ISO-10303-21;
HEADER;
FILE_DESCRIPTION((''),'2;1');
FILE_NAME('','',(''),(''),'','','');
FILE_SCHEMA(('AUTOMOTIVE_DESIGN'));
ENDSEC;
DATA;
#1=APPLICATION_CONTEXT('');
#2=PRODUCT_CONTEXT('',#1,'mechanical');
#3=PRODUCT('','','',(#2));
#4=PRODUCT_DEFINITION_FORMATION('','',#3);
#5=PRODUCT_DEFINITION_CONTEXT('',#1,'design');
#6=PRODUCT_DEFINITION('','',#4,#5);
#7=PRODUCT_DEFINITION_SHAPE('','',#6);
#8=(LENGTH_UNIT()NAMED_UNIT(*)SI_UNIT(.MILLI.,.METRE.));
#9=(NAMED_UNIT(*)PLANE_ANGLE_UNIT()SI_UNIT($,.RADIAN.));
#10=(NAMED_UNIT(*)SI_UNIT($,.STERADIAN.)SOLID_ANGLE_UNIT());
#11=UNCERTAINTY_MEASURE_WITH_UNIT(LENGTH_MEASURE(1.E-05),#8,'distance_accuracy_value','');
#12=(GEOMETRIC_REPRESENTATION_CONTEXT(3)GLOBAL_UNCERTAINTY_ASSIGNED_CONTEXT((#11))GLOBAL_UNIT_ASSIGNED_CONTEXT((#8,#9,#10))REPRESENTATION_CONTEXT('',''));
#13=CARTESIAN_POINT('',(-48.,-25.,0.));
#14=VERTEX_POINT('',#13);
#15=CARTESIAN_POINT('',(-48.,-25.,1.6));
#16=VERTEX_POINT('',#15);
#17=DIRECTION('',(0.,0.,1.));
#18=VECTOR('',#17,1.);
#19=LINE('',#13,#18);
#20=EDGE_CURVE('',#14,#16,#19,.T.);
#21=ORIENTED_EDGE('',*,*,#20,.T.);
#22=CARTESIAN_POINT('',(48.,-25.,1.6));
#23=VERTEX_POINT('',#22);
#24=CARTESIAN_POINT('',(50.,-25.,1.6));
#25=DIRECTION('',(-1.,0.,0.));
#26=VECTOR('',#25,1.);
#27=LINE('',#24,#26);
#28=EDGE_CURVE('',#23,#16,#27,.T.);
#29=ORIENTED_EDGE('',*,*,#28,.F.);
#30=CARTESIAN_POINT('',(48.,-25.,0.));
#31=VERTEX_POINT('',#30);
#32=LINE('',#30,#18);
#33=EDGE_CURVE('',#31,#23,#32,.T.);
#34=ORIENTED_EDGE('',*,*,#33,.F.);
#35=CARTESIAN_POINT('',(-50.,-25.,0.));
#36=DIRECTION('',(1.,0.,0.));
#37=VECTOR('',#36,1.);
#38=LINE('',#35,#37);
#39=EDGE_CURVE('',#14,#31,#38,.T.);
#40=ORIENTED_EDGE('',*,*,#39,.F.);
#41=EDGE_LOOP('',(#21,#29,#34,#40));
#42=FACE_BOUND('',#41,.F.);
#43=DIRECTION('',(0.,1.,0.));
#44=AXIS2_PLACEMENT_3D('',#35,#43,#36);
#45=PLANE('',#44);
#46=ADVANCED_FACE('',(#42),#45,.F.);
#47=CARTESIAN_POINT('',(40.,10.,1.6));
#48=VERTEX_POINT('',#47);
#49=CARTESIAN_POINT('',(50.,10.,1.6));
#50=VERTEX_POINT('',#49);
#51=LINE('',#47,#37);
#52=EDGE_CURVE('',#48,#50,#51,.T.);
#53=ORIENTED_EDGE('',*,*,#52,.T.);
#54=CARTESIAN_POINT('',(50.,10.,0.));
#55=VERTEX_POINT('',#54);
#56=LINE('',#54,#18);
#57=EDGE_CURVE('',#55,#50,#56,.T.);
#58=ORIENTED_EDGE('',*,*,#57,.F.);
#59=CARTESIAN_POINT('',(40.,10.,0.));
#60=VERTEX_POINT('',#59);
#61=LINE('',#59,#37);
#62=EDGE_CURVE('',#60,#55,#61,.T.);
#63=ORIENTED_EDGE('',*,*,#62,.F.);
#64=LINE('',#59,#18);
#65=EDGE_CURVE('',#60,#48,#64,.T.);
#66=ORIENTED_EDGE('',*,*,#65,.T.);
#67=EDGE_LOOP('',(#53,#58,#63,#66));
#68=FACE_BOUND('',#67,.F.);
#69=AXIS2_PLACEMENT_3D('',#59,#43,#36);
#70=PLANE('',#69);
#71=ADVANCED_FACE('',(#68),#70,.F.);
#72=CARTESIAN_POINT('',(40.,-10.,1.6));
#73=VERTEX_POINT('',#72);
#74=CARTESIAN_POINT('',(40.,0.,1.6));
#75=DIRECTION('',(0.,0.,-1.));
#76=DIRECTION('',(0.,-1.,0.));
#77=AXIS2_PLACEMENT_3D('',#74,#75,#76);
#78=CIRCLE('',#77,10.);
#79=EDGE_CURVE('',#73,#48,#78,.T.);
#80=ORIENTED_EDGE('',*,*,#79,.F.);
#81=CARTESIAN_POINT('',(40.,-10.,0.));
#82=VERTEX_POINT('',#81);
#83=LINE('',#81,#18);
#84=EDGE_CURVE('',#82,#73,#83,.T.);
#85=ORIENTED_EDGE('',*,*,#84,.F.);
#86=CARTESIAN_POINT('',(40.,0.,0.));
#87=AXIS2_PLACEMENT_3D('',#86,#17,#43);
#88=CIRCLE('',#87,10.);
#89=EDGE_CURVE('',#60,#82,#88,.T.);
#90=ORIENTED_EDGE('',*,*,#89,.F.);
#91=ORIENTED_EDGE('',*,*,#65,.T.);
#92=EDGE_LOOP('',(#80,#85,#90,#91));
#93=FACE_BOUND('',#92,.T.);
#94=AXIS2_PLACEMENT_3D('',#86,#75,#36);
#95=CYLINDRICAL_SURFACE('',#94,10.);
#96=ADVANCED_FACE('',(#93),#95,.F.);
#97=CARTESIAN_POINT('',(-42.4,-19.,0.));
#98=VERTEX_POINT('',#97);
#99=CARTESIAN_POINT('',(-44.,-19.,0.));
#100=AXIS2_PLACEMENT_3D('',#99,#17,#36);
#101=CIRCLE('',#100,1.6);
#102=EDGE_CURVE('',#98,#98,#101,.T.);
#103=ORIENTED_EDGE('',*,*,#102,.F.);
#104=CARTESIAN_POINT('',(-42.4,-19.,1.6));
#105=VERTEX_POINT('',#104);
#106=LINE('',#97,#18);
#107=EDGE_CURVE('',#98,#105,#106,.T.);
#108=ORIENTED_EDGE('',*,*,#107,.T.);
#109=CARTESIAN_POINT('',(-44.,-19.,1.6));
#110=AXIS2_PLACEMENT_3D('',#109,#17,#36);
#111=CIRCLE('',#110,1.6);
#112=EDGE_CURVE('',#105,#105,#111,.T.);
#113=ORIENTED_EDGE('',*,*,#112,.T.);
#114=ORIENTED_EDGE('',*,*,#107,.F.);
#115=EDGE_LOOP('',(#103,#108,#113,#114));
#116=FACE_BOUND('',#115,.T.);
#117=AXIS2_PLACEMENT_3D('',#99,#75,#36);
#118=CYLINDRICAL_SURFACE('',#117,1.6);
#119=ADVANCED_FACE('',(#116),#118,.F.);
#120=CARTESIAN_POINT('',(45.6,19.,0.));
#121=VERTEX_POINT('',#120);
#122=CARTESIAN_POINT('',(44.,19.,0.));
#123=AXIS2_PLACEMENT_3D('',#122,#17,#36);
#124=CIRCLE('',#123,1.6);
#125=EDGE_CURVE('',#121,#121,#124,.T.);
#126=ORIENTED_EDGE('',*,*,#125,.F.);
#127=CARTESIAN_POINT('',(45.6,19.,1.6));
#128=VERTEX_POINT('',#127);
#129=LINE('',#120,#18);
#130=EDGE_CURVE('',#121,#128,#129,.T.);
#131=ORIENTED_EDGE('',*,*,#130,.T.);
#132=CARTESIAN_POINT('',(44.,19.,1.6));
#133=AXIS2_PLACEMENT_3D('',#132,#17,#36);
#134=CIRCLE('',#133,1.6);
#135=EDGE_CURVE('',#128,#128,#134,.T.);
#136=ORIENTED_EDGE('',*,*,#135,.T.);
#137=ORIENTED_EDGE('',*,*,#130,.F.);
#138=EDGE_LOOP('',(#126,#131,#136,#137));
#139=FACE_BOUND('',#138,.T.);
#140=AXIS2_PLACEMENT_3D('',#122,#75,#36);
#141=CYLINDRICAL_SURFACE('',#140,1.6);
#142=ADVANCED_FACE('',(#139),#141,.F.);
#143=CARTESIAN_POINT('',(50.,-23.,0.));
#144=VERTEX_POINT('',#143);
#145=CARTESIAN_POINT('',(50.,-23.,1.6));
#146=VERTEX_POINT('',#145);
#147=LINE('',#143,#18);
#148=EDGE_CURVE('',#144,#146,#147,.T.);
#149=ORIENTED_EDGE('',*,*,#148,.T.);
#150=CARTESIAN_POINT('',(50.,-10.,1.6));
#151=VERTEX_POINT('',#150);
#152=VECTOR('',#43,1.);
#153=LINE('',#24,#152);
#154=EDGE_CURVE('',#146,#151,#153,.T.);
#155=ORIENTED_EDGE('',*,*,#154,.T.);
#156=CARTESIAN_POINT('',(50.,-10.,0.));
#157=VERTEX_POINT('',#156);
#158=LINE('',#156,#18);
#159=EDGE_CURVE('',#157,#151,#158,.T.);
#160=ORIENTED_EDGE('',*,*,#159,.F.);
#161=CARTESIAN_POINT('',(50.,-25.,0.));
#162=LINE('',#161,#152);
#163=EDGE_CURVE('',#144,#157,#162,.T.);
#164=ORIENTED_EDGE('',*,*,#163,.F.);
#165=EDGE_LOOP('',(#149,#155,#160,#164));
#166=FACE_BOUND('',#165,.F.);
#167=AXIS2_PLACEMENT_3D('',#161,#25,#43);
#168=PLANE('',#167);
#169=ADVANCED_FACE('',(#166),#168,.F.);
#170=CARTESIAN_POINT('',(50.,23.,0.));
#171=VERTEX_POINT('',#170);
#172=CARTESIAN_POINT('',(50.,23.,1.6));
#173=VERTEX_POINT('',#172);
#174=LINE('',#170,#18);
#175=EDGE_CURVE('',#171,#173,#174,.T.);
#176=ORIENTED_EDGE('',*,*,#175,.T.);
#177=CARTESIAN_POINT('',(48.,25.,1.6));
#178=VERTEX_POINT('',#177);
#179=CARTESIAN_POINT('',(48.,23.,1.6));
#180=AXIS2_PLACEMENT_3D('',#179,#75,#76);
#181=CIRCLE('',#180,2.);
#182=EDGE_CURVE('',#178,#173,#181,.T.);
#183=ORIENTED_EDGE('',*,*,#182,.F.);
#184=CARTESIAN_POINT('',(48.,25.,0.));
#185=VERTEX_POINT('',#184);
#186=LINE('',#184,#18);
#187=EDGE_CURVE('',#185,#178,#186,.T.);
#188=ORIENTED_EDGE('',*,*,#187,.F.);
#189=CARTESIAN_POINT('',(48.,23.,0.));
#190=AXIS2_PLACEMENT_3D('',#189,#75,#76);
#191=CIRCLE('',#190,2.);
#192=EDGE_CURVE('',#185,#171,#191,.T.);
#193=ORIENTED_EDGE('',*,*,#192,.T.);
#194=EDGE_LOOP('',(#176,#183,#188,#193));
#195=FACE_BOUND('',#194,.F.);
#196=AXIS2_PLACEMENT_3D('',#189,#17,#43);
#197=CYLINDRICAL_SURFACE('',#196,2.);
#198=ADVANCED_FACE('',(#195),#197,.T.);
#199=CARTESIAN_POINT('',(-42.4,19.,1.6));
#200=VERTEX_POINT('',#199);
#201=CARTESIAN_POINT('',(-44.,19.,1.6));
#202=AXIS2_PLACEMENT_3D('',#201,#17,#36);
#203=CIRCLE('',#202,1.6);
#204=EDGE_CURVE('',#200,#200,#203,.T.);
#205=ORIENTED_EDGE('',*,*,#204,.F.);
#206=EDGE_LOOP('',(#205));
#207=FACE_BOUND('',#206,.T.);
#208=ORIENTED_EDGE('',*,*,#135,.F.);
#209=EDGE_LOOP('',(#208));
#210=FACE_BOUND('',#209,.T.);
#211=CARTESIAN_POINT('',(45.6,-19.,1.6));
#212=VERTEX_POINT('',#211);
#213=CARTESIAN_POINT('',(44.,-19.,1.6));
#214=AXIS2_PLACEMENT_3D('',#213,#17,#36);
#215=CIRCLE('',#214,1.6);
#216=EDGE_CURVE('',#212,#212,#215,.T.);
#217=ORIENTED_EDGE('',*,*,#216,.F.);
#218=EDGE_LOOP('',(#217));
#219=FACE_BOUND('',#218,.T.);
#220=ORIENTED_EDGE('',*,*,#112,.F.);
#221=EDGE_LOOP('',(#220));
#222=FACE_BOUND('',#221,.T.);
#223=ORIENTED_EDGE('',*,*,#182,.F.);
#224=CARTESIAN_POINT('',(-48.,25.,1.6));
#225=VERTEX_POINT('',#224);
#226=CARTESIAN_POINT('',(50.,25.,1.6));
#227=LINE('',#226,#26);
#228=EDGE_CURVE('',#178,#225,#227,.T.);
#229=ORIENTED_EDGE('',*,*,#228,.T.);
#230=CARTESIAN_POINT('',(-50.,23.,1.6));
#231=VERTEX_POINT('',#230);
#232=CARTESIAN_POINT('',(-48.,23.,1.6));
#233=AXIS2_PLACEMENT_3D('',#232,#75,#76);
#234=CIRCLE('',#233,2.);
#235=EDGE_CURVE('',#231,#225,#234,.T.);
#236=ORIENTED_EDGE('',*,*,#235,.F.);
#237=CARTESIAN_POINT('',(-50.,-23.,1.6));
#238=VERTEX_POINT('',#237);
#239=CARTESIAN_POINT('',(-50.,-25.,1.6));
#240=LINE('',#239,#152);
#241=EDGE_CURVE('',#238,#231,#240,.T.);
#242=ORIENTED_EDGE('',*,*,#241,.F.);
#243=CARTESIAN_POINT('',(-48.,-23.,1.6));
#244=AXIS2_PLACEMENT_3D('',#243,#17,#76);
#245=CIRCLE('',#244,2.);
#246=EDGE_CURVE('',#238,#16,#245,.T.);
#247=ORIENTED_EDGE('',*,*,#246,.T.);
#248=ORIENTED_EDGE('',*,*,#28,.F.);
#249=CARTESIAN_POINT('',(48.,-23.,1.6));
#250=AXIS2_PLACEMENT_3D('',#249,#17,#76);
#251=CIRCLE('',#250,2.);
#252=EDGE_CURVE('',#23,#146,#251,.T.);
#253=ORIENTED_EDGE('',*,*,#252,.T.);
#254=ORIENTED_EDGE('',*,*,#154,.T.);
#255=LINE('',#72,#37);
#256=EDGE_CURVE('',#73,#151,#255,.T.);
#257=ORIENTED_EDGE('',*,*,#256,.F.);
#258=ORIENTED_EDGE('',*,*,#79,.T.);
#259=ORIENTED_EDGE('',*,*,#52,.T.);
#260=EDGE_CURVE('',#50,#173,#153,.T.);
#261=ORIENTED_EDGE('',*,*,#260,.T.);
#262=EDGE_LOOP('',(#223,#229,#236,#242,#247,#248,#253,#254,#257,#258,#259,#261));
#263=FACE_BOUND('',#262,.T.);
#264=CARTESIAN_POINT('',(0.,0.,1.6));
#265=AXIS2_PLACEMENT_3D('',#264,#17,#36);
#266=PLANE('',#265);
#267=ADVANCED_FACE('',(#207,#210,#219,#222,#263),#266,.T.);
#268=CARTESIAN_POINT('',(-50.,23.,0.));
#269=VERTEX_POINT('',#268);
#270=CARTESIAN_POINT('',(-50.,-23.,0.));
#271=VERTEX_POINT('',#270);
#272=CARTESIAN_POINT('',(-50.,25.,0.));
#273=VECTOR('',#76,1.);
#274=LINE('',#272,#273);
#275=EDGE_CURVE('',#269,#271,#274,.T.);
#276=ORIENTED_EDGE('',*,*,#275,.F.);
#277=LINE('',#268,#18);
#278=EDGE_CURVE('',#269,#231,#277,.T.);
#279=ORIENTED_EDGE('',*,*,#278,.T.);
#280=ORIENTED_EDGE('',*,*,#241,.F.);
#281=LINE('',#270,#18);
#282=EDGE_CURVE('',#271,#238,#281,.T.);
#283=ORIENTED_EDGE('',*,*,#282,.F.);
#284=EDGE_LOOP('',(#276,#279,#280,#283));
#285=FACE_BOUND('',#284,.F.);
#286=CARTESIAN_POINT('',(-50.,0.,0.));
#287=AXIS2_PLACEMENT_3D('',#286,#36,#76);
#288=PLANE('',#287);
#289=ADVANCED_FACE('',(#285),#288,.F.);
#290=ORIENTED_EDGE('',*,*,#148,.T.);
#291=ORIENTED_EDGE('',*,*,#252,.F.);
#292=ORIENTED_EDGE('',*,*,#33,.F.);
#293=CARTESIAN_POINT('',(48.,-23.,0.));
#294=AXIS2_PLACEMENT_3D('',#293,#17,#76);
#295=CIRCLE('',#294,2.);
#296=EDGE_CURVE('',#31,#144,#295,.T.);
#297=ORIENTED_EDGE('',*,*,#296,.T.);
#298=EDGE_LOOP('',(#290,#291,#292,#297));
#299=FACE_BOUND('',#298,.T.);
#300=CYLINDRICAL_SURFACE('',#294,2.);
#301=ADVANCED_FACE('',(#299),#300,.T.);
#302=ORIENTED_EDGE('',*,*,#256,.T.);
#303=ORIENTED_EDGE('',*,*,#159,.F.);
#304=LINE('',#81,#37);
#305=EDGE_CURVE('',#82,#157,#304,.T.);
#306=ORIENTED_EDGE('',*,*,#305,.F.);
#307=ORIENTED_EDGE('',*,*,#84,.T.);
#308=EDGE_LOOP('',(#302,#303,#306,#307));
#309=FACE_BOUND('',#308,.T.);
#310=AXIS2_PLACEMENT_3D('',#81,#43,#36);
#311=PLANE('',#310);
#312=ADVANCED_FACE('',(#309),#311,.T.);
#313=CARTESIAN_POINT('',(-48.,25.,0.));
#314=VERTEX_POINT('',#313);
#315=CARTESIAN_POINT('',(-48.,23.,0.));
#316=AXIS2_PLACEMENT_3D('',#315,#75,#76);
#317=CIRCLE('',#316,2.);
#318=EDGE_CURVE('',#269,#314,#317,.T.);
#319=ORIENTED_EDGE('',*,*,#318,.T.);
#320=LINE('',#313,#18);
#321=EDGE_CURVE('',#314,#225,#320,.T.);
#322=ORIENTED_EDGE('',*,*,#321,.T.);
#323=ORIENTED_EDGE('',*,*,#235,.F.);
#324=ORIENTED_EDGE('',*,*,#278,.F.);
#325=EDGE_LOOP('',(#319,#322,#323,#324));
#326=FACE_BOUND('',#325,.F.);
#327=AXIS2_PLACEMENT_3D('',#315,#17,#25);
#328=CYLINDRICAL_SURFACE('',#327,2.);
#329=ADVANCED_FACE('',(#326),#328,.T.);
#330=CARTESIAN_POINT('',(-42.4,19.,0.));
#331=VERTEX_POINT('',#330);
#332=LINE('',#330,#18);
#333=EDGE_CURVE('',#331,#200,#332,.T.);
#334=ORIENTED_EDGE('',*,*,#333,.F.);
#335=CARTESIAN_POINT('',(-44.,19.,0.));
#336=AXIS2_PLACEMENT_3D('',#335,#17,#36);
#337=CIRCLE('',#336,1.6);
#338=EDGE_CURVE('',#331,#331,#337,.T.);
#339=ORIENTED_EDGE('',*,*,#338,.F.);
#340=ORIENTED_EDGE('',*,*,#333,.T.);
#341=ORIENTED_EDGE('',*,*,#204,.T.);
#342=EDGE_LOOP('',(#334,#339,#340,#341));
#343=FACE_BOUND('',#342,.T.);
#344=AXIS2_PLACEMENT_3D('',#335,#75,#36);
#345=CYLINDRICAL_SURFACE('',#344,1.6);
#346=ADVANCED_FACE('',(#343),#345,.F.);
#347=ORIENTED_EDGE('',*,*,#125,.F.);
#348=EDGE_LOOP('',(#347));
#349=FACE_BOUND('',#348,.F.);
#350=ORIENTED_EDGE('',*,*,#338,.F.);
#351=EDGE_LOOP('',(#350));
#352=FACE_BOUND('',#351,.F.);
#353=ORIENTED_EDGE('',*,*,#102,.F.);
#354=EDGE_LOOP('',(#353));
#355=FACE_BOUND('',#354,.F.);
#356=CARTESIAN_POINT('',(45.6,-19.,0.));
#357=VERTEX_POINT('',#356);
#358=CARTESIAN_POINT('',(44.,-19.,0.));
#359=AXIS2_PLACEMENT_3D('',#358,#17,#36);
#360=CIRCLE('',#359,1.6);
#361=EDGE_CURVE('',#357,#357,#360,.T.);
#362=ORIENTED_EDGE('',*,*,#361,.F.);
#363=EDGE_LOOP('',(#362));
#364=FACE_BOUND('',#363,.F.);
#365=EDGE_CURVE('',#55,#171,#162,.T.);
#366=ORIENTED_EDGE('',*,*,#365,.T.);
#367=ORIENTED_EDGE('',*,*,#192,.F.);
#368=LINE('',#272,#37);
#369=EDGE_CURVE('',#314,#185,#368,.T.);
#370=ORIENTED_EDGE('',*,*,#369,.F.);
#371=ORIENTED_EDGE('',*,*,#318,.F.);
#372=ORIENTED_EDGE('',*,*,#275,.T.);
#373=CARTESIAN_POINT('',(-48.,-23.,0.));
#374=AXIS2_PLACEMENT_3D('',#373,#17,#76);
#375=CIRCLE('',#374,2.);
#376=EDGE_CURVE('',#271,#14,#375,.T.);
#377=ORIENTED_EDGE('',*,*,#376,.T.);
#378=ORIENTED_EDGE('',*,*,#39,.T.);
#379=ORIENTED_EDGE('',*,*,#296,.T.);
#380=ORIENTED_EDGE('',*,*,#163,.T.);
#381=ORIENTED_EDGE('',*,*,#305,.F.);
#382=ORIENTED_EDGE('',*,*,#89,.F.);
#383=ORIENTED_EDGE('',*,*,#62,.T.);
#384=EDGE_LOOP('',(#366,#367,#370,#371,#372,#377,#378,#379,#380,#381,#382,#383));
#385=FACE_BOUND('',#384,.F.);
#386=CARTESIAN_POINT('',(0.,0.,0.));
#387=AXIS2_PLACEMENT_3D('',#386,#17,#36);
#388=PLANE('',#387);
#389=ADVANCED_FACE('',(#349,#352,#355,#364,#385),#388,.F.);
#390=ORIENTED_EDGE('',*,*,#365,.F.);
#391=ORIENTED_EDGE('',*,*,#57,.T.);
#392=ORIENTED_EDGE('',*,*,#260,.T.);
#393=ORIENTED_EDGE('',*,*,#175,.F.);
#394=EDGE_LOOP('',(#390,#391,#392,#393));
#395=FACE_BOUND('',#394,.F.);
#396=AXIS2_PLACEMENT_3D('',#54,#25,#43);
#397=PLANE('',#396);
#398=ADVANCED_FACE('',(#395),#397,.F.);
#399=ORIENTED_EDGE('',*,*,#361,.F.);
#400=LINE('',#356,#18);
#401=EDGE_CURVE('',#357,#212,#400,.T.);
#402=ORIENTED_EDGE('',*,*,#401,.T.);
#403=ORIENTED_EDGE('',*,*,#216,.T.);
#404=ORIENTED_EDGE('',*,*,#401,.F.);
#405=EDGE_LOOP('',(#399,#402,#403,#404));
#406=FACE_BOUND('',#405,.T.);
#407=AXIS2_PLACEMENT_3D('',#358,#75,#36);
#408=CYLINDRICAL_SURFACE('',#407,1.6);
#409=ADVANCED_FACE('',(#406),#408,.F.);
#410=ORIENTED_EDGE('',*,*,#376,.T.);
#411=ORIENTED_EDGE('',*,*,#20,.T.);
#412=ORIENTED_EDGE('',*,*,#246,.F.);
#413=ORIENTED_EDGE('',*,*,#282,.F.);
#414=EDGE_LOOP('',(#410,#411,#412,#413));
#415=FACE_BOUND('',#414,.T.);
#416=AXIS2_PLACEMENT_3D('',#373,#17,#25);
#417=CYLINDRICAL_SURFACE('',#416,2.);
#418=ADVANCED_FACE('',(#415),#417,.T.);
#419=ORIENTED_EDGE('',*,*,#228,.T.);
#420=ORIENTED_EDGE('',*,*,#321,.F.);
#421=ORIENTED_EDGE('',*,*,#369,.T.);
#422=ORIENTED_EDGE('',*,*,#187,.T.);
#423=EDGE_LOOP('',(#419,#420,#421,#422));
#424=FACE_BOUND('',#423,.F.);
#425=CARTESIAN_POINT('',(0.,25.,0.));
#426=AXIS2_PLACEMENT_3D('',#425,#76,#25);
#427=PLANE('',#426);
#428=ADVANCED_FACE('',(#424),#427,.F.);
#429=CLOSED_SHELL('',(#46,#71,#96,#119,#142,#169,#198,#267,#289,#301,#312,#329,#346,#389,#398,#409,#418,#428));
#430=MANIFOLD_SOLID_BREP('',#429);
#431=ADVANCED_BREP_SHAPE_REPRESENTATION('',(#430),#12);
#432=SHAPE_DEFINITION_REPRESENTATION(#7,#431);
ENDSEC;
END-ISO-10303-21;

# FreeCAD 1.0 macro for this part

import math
import FreeCAD as App
import Part
import Sketcher
Q = App.Units.Quantity


def edges_at(feature, points):
    """Names of the edges that pass closest to the given points."""
    edges = feature.Shape.Edges
    near = lambda p: min(range(len(edges)), key=lambda i: edges[i].distToShape(Part.Vertex(*p))[0])
    return sorted({f"Edge{near(p) + 1}" for p in points})

doc = App.newDocument("Part")
body = doc.addObject("PartDesign::Body", "Body")

# Sketch on XY plane
sketch1 = body.newObject("Sketcher::SketchObject", "Sketch")
sketch1.AttachmentSupport = (doc.getObject("XY_Plane"), [""])
sketch1.MapMode = "FlatFace"
sketch1.addGeometry(Part.LineSegment(App.Vector(-50, -25, 0), App.Vector(50, -25, 0)), False)
sketch1.addGeometry(Part.LineSegment(App.Vector(50, -25, 0), App.Vector(50, -10, 0)), False)
sketch1.addGeometry(Part.LineSegment(App.Vector(50, -10, 0), App.Vector(40, -10, 0)), False)
sketch1.addGeometry(Part.ArcOfCircle(Part.Circle(App.Vector(40, 0, 0), App.Vector(0, 0, 1), 10), math.radians(90), math.radians(270)), False)
sketch1.addGeometry(Part.LineSegment(App.Vector(40, 10, 0), App.Vector(50, 10, 0)), False)
sketch1.addGeometry(Part.LineSegment(App.Vector(50, 10, 0), App.Vector(50, 25, 0)), False)
sketch1.addGeometry(Part.LineSegment(App.Vector(50, 25, 0), App.Vector(-50, 25, 0)), False)
sketch1.addGeometry(Part.LineSegment(App.Vector(-50, 25, 0), App.Vector(-50, -25, 0)), False)
sketch1.addGeometry(Part.Circle(App.Vector(-44, -19, 0), App.Vector(0, 0, 1), 1.6), False)
sketch1.addGeometry(Part.Circle(App.Vector(-44, 19, 0), App.Vector(0, 0, 1), 1.6), False)
sketch1.addGeometry(Part.Circle(App.Vector(44, -19, 0), App.Vector(0, 0, 1), 1.6), False)
sketch1.addGeometry(Part.Circle(App.Vector(44, 19, 0), App.Vector(0, 0, 1), 1.6), False)
sketch1.addConstraint(Sketcher.Constraint("Coincident", 0, 2, 1, 1))
sketch1.addConstraint(Sketcher.Constraint("Coincident", 1, 2, 2, 1))
sketch1.addConstraint(Sketcher.Constraint("Tangent", 2, 2, 3, 2))
sketch1.addConstraint(Sketcher.Constraint("Tangent", 3, 1, 4, 1))
sketch1.addConstraint(Sketcher.Constraint("Coincident", 4, 2, 5, 1))
sketch1.addConstraint(Sketcher.Constraint("Coincident", 5, 2, 6, 1))
sketch1.addConstraint(Sketcher.Constraint("Coincident", 6, 2, 7, 1))
sketch1.addConstraint(Sketcher.Constraint("Coincident", 7, 2, 0, 1))
sketch1.addConstraint(Sketcher.Constraint("Horizontal", 0))
sketch1.addConstraint(Sketcher.Constraint("Vertical", 1))
sketch1.addConstraint(Sketcher.Constraint("Horizontal", 2))
sketch1.addConstraint(Sketcher.Constraint("Horizontal", 4))
sketch1.addConstraint(Sketcher.Constraint("Vertical", 5))
sketch1.addConstraint(Sketcher.Constraint("Horizontal", 6))
sketch1.addConstraint(Sketcher.Constraint("Vertical", 7))
sketch1.addConstraint(Sketcher.Constraint("Equal", 8, 9))
sketch1.addConstraint(Sketcher.Constraint("Equal", 9, 10))
sketch1.addConstraint(Sketcher.Constraint("Equal", 10, 11))
sketch1.addConstraint(Sketcher.Constraint("Symmetric", 9, 3, 10, 3, -1, 1))
sketch1.addConstraint(Sketcher.Constraint("Symmetric", 8, 3, 11, 3, -1, 1))
sketch1.addConstraint(Sketcher.Constraint("Symmetric", 0, 2, 6, 2, -1, 1))
sketch1.addConstraint(Sketcher.Constraint("Symmetric", 8, 3, 10, 3, -2))
sketch1.addConstraint(Sketcher.Constraint("Symmetric", 1, 2, 4, 2, -1))
sketch1.addConstraint(Sketcher.Constraint("Radius", 3, Q("10 mm")))
sketch1.addConstraint(Sketcher.Constraint("Diameter", 8, Q("3.2 mm")))
sketch1.addConstraint(Sketcher.Constraint("DistanceX", 0, 1, 0, 2, Q("100 mm")))
sketch1.addConstraint(Sketcher.Constraint("DistanceX", 2, 2, 2, 1, Q("10 mm")))
sketch1.addConstraint(Sketcher.Constraint("DistanceY", 7, 2, 7, 1, Q("50 mm")))
sketch1.addConstraint(Sketcher.Constraint("DistanceX", 10, 3, 0, 2, Q("6 mm")))
sketch1.addConstraint(Sketcher.Constraint("DistanceY", 0, 2, 10, 3, Q("6 mm")))
pad1 = body.newObject("PartDesign::Pad", "Pad")
pad1.Profile = sketch1
pad1.Length = 1.6
doc.recompute()

fillet = body.newObject("PartDesign::Fillet", "Fillet")
fillet.Base = (pad1, edges_at(pad1, [
    (-50, 25, 0.8),
    (50, 25, 0.8),
    (50, -25, 0.8),
    (-50, -25, 0.8),
]))
fillet.Radius = 2

doc.recompute()
